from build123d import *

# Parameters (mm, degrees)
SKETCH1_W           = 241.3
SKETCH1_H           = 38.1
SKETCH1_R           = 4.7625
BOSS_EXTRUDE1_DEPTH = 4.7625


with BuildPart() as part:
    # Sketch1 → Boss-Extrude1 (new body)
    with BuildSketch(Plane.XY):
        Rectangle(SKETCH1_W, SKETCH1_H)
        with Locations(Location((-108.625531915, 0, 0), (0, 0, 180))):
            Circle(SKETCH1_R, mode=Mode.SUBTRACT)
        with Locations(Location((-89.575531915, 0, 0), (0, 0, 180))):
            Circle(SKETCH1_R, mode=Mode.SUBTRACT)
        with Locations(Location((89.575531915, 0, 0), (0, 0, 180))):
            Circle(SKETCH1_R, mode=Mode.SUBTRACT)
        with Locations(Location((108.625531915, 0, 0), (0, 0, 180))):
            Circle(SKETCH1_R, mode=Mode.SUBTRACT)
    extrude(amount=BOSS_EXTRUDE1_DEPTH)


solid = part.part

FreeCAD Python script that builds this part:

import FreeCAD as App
import Part
import Sketcher
from FreeCAD import Vector
Q = App.Units.Quantity


def add_polygon(sketch, points):
    """Adds a closed chain of lines whose ends are joined by coincident constraints."""
    first, n = sketch.GeometryCount, len(points)
    for a, b in zip(points, points[1:] + points[:1]):
        sketch.addGeometry(Part.LineSegment(App.Vector(*a, 0), App.Vector(*b, 0)), False)
    for i in range(n):
        sketch.addConstraint(Sketcher.Constraint("Coincident", first + i, 2, first + (i + 1) % n, 1))

doc = App.newDocument("Part")
body = doc.addObject("PartDesign::Body", "Body")

# Sketch on XY plane
sketch1 = body.newObject("Sketcher::SketchObject", "Sketch")
sketch1.AttachmentSupport = (doc.getObject("XY_Plane"), [""])
sketch1.MapMode = "FlatFace"
add_polygon(sketch1, [(-120.65, 19.05), (-120.65, -19.05), (120.65, -19.05), (120.65, 19.05)])  # lines 0-3
sketch1.addGeometry(Part.Circle(Vector(-108.625532, 0, 0), Vector(0, 0, 1), 4.7625), False)  # 4
sketch1.addGeometry(Part.Circle(Vector(-89.575532, 0, 0), Vector(0, 0, 1), 4.7625), False)  # 5
sketch1.addGeometry(Part.Circle(Vector(89.575532, 0, 0), Vector(0, 0, 1), 4.7625), False)  # 6
sketch1.addGeometry(Part.Circle(Vector(108.625532, 0, 0), Vector(0, 0, 1), 4.7625), False)  # 7
sketch1.addConstraint([
    Sketcher.Constraint("Vertical", 0),
    Sketcher.Constraint("Horizontal", 1),
    Sketcher.Constraint("Vertical", 2),
    Sketcher.Constraint("Horizontal", 3),
    Sketcher.Constraint("Equal", 4, 5),
    Sketcher.Constraint("Equal", 5, 6),
    Sketcher.Constraint("Equal", 6, 7),
    Sketcher.Constraint("Symmetric", 5, 3, 6, 3, -1, 1),
    Sketcher.Constraint("Symmetric", 4, 3, 7, 3, -1, 1),
    Sketcher.Constraint("Symmetric", 0, 2, 2, 2, -1, 1),
    Sketcher.Constraint("PointOnObject", 4, 3, -1),
    Sketcher.Constraint("PointOnObject", 5, 3, -1),
    Sketcher.Constraint("Diameter", 4, Q("0.375 in")),
    Sketcher.Constraint("DistanceX", 1, 1, 1, 2, Q("9.5 in")),
    Sketcher.Constraint("DistanceY", 0, 2, 0, 1, Q("1.5 in")),
    Sketcher.Constraint("DistanceX", 4, 3, 5, 3, Q("0.75 in")),
    Sketcher.Constraint("DistanceX", 4, 3, -1, 1, Q("108.625532 mm")),
])
pad1 = body.newObject("PartDesign::Pad", "Pad")
pad1.Profile = sketch1
pad1.Length = Q("0.1875 in")

doc.recompute()
